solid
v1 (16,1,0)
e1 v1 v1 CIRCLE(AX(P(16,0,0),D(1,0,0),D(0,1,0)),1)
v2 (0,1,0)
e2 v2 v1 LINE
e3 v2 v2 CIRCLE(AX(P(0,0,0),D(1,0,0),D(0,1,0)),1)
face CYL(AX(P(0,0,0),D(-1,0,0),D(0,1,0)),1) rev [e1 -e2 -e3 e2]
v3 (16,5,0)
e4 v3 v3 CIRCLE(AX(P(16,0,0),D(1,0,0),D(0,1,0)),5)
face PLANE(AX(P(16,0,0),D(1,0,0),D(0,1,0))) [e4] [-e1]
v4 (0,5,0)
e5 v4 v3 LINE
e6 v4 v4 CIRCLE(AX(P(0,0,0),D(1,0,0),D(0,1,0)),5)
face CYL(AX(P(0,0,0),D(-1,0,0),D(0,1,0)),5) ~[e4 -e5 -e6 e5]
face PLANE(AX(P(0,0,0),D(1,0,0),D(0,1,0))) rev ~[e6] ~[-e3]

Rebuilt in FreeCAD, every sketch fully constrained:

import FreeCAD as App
import Part
import Sketcher

V = App.Vector
Q = App.Units.Quantity

doc = App.newDocument("Part")
body = doc.addObject("PartDesign::Body", "Body")

# Sketch on YZ plane
sketch1 = doc.addObject("Sketcher::SketchObject", "Sketch")
body.addObject(sketch1)
sketch1.AttachmentSupport = (doc.YZ_Plane, [""])
sketch1.MapMode = "FlatFace"
sketch1.addGeometry([
    Part.Circle(V(0, 0, 0), V(0, 0, 1), 5),
    Part.Circle(V(0, 0, 0), V(0, 0, 1), 1),
], False)
sketch1.addConstraint([
    Sketcher.Constraint("Coincident", 0, 3, -1, 1),
    Sketcher.Constraint("Coincident", 1, 3, -1, 1),
    Sketcher.Constraint("Diameter", 0, Q("10 mm")),
    Sketcher.Constraint("Diameter", 1, Q("2 mm")),
])
pad1 = doc.addObject("PartDesign::Pad", "Pad")
body.addObject(pad1)
pad1.Profile = sketch1
pad1.Length = 16

doc.recompute()
